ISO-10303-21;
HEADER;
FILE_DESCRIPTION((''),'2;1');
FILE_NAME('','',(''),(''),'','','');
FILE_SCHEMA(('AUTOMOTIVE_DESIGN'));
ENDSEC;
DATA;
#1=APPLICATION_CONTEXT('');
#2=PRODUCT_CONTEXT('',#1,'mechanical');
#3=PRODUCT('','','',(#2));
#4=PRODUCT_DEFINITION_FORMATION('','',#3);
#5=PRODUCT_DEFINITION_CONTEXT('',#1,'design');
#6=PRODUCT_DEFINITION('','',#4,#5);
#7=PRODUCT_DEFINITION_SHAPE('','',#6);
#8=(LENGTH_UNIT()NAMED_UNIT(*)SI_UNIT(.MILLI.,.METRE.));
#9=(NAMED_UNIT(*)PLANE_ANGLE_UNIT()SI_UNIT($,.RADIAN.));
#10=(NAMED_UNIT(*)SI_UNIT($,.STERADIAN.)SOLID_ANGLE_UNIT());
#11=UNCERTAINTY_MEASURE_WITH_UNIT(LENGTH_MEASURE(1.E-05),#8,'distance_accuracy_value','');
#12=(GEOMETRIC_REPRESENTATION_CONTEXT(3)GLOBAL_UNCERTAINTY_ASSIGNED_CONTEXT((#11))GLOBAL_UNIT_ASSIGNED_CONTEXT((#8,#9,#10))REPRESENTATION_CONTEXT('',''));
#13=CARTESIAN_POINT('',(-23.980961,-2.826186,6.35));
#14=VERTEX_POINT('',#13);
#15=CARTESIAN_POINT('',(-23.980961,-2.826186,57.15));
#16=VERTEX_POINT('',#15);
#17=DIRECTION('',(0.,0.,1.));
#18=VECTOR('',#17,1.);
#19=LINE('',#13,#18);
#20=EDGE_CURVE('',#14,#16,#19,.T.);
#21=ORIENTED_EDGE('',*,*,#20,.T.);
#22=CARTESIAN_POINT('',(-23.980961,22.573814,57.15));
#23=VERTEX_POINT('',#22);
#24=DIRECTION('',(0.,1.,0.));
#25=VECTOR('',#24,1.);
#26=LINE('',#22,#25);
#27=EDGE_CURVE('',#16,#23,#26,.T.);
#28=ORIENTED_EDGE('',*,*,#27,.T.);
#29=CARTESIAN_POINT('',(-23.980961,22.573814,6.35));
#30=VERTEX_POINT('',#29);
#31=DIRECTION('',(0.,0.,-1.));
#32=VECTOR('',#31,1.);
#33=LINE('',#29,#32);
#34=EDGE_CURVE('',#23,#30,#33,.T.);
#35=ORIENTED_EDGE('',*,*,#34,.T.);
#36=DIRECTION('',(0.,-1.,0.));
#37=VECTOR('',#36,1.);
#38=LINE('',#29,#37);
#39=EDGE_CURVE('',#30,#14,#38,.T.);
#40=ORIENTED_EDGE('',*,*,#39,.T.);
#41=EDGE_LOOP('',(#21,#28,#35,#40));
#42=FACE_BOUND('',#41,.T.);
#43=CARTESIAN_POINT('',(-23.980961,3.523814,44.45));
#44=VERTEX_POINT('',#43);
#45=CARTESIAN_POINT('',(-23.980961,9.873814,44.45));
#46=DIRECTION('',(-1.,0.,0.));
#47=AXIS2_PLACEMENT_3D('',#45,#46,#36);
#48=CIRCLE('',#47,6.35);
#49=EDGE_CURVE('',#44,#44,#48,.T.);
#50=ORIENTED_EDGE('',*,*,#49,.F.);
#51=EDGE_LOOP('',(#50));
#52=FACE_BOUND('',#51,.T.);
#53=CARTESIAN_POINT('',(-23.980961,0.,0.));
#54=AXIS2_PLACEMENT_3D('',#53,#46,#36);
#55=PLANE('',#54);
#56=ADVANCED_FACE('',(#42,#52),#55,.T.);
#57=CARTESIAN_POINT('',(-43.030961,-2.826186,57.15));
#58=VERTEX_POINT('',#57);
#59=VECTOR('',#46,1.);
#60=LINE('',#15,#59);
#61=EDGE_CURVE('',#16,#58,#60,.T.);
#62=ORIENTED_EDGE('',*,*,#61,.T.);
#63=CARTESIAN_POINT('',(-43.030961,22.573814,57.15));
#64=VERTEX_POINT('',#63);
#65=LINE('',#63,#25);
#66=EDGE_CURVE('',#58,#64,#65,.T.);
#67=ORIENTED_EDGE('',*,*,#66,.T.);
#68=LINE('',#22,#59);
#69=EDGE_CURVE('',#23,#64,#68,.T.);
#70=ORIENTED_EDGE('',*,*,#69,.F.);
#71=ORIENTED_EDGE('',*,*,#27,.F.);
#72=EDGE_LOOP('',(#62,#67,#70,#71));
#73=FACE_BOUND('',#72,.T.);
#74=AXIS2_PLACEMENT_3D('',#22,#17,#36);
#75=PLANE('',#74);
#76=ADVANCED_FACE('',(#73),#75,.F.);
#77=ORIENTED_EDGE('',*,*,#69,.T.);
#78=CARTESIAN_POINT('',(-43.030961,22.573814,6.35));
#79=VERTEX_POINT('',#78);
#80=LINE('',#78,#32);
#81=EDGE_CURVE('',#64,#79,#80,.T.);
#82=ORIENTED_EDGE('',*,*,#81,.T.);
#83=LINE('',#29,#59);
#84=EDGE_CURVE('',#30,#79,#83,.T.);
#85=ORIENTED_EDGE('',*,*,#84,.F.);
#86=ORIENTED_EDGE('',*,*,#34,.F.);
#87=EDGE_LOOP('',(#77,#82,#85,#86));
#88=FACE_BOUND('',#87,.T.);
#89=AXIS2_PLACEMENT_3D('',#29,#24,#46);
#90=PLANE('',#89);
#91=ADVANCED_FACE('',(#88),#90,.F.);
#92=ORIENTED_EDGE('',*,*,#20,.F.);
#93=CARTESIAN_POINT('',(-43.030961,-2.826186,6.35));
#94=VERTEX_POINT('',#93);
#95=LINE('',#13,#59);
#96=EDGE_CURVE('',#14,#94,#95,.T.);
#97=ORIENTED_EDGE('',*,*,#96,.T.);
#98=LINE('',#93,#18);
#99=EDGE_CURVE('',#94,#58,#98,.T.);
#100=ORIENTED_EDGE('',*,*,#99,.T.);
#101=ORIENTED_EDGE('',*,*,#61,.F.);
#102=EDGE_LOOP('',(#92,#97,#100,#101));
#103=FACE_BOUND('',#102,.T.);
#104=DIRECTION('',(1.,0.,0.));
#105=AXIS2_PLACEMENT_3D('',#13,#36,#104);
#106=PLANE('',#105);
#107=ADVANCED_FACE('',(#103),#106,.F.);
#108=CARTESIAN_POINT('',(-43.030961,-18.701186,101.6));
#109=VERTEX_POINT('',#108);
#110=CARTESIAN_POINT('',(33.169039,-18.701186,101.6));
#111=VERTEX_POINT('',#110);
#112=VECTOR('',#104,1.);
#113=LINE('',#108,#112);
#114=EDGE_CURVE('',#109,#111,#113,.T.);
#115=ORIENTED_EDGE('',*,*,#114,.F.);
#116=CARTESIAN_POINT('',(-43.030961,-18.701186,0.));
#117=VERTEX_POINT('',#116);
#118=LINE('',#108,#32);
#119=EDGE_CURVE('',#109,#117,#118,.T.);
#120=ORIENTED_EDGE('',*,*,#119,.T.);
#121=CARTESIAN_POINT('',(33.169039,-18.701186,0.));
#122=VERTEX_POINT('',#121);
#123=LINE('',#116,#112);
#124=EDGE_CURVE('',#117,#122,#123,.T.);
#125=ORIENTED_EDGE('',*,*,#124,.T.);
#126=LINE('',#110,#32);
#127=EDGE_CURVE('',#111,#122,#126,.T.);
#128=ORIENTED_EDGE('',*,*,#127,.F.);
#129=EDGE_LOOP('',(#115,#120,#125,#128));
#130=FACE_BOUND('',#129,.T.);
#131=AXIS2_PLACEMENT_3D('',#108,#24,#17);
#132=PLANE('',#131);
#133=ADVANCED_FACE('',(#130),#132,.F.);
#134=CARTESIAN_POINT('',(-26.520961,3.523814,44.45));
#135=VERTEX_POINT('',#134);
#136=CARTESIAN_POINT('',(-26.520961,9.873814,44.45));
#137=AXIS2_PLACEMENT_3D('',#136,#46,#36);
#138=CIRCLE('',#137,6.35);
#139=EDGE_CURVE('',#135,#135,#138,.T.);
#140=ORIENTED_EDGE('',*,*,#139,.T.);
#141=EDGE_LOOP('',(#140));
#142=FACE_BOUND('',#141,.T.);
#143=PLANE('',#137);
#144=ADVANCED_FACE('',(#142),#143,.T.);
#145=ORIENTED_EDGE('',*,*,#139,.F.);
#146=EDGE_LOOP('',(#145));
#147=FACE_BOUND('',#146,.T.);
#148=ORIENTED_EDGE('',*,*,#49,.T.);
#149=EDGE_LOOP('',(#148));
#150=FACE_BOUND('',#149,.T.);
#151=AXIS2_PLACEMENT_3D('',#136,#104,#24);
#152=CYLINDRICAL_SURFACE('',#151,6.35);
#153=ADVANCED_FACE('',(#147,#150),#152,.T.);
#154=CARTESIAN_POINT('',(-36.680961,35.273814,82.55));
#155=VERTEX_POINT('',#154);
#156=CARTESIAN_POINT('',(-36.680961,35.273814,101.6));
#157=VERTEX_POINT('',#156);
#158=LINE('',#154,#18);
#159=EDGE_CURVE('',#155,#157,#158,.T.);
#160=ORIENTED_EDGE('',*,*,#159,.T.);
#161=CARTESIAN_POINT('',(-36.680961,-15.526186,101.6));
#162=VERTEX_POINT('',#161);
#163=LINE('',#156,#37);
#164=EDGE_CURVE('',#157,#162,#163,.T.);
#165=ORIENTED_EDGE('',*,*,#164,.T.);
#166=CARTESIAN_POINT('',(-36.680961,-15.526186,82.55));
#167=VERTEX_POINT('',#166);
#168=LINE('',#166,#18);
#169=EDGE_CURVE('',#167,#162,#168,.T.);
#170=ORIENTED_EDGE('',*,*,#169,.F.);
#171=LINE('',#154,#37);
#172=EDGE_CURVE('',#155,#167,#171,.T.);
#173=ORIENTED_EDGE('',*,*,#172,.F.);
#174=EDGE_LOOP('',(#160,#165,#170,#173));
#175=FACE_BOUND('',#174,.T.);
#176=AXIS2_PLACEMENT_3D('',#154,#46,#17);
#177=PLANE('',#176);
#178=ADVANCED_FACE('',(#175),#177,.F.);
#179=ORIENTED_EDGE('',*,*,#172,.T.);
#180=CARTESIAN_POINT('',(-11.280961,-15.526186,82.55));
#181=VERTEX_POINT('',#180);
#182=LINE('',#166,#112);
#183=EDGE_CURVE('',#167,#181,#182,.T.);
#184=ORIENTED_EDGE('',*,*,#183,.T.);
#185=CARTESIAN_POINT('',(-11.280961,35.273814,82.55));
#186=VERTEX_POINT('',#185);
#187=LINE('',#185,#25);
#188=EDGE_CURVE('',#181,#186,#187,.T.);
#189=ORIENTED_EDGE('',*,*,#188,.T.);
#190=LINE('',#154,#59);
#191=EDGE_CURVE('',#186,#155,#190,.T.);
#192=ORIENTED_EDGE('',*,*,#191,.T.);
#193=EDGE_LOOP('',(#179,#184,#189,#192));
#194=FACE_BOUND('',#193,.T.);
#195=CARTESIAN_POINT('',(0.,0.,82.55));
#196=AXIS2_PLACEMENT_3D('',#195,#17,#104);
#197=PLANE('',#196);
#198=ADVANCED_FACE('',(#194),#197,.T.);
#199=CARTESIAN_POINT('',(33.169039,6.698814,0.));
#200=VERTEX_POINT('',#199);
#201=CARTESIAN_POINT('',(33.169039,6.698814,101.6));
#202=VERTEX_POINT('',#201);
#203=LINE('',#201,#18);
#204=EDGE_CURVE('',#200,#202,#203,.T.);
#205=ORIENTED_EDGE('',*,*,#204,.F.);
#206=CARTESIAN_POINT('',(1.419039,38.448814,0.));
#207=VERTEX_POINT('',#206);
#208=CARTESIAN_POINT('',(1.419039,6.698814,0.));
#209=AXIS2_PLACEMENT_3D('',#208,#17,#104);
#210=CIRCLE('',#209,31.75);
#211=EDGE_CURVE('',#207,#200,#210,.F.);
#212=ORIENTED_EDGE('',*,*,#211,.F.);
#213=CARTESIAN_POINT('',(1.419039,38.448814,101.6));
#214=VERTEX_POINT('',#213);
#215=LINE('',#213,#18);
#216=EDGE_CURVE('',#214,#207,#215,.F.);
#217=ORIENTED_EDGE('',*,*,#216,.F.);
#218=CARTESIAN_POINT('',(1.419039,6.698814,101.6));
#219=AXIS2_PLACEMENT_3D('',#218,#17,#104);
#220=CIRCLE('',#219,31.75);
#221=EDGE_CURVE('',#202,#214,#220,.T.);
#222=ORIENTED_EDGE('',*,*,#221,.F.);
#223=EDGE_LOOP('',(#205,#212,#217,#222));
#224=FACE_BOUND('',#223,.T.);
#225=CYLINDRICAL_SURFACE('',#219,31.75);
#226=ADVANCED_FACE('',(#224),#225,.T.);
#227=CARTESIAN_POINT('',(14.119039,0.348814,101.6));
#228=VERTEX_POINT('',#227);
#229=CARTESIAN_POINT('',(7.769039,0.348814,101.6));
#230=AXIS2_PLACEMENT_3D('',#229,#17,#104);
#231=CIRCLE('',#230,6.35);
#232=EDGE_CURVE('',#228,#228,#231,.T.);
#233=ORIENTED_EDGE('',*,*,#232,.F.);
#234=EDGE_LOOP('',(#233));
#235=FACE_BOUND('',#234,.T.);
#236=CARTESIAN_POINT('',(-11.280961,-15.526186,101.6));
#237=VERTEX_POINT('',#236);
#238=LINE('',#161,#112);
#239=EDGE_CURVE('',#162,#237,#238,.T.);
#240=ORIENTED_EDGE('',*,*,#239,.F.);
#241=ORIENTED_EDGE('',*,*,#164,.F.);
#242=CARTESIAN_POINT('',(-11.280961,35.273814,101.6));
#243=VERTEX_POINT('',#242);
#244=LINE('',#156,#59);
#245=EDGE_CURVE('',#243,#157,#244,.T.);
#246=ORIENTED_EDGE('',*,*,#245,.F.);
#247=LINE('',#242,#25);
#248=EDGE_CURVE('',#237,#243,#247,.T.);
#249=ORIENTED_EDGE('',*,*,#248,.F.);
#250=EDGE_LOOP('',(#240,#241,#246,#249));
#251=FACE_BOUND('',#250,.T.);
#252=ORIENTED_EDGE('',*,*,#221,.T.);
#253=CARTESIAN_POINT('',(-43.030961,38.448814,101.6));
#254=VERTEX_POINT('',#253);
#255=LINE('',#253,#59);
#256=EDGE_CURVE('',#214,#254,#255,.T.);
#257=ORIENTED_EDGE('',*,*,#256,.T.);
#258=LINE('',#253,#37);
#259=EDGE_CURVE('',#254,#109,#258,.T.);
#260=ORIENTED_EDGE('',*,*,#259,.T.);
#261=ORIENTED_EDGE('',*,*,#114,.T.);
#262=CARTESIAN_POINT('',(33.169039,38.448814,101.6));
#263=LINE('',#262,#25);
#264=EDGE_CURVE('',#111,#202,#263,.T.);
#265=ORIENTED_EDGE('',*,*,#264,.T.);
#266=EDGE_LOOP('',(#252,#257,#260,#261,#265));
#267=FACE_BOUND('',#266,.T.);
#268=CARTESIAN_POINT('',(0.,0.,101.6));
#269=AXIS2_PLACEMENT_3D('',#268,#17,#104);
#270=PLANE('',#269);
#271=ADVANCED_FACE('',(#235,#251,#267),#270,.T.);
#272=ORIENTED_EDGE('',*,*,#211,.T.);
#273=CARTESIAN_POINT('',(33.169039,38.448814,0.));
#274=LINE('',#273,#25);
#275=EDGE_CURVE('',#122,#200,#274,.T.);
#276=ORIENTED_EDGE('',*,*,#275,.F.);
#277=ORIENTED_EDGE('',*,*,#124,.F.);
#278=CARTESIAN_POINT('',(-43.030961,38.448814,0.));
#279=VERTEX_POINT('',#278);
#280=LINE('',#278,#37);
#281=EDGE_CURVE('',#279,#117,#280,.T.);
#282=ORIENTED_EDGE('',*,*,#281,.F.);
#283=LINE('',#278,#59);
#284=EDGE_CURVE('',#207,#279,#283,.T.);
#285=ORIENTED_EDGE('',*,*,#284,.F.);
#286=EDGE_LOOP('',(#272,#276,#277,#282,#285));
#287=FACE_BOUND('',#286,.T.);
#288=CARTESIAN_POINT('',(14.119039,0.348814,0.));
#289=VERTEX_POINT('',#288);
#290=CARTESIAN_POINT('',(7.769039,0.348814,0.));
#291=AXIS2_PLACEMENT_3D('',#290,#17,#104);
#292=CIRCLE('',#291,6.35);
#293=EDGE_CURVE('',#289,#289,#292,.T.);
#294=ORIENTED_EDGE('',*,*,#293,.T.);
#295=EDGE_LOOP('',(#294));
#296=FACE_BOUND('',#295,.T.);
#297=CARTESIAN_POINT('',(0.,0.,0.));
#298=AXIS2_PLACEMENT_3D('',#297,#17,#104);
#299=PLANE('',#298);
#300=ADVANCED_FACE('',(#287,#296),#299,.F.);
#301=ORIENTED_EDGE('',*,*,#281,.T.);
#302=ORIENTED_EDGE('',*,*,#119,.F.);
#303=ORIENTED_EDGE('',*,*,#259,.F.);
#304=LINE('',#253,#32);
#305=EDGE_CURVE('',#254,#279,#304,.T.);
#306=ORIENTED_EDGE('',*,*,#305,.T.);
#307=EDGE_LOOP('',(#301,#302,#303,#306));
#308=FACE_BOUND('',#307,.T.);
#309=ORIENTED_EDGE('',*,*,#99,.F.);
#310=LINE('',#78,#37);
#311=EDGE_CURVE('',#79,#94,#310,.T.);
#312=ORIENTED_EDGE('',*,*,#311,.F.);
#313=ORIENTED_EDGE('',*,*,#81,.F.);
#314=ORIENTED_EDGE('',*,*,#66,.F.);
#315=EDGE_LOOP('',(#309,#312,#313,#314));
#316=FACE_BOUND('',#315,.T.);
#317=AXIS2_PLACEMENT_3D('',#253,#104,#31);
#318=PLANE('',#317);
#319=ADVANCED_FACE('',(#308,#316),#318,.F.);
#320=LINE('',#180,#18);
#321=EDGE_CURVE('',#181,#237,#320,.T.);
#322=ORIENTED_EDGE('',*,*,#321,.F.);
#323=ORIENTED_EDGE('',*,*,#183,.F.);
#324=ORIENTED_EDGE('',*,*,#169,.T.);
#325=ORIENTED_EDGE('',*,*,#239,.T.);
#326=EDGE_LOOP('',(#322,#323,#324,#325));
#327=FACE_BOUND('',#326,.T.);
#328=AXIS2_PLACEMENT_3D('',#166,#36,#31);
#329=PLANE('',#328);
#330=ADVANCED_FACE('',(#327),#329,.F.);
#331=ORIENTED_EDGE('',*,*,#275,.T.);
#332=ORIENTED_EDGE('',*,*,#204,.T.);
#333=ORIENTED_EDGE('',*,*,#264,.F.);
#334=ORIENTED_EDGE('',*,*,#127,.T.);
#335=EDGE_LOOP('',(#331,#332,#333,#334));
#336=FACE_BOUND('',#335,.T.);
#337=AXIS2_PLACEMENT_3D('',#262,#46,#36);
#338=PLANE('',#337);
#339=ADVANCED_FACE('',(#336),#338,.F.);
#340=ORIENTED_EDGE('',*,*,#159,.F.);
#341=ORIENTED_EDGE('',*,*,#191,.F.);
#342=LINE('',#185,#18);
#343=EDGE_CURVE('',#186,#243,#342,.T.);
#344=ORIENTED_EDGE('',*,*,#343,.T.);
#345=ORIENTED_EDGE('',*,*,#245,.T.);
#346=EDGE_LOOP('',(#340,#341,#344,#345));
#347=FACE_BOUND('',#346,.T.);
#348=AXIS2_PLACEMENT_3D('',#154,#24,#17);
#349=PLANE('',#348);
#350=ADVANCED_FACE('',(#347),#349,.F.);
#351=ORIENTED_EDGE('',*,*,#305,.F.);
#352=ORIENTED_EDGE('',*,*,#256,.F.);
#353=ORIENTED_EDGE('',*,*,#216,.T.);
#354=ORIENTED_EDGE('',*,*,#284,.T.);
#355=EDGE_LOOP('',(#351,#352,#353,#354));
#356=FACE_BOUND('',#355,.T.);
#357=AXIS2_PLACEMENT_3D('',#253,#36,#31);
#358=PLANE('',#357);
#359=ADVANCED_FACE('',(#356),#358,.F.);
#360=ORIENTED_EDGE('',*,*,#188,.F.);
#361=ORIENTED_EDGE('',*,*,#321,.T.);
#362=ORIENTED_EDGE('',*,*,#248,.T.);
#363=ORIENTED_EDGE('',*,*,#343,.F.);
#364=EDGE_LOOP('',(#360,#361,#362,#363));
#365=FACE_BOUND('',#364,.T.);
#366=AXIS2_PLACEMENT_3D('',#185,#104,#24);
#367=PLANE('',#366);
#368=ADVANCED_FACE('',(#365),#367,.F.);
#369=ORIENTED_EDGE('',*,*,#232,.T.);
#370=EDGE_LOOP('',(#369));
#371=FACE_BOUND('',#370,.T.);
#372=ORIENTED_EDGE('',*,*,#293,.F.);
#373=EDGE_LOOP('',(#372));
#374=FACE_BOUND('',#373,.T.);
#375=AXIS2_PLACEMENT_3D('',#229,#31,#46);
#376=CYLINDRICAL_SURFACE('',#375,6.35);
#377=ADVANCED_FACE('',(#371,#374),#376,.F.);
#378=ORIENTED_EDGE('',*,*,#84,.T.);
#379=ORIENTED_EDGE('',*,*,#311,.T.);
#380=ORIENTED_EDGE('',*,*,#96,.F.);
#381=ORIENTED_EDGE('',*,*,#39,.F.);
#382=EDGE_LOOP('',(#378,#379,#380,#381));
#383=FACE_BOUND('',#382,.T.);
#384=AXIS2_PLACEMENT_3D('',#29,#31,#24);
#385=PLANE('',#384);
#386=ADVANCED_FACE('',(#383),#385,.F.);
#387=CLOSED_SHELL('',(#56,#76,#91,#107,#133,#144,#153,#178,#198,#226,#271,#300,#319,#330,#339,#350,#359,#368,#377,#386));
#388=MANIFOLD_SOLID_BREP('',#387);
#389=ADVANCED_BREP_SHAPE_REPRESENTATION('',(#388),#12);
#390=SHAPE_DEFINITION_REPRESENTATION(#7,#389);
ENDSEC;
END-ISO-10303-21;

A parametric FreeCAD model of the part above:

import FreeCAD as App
import Part
import Sketcher
from FreeCAD import Vector
Q = App.Units.Quantity


def edges_at(feature, points):
    """Names of the edges that pass closest to the given points."""
    edges = feature.Shape.Edges
    near = lambda p: min(range(len(edges)), key=lambda i: edges[i].distToShape(Part.Vertex(*p))[0])
    return sorted({f"Edge{near(p) + 1}" for p in points})


def add_polygon(sketch, points):
    """Adds a closed chain of lines whose ends are joined by coincident constraints."""
    first, n = sketch.GeometryCount, len(points)
    for a, b in zip(points, points[1:] + points[:1]):
        sketch.addGeometry(Part.LineSegment(App.Vector(*a, 0), App.Vector(*b, 0)), False)
    for i in range(n):
        sketch.addConstraint(Sketcher.Constraint("Coincident", first + i, 2, first + (i + 1) % n, 1))

doc = App.newDocument("Part")
params = doc.addObject("Spreadsheet::Sheet", "Params")
for row, (alias, value) in enumerate([
    ("sketch1_diameter", "0.5 in"),
    ("sketch1_width", "3 in"),
    ("sketch1_height", "2.25 in"),
    ("pad1_length", "4 in"),
    ("sketch2_width", "1 in"),
    ("sketch2_height", "2 in"),
    ("pocket1_length", "0.75 in"),
    ("sketch3_width", "1 in"),
    ("sketch3_height", "2 in"),
    ("pocket2_length", "0.75 in"),
    ("sketch4_diameter", "0.5 in"),
    ("pad2_length", "0.1 in"),
    ("fillet_radius", "1.25 in"),
], start=1):
    params.set(f"A{row}", alias)
    params.set(f"B{row}", "=" + value)
    params.setAlias(f"B{row}", alias)

body = doc.addObject("PartDesign::Body", "Body")

# Sketch on XY plane
sketch1 = body.newObject("Sketcher::SketchObject", "Sketch")
sketch1.AttachmentSupport = (doc.getObject("XY_Plane"), [""])
sketch1.MapMode = "FlatFace"
add_polygon(sketch1, [(-43.030961, 38.448814), (-43.030961, -18.701186), (33.169039, -18.701186), (33.169039, 38.448814)])  # lines 0-3
sketch1.addGeometry(Part.Circle(Vector(7.769039, 0.348814, 0), Vector(0, 0, 1), 6.35), False)  # 4
sketch1.addConstraint([
    Sketcher.Constraint("Vertical", 0),
    Sketcher.Constraint("Horizontal", 1),
    Sketcher.Constraint("Vertical", 2),
    Sketcher.Constraint("Horizontal", 3),
    Sketcher.Constraint("Diameter", 4, Q("0.5 in")),
    Sketcher.Constraint("DistanceX", 1, 1, 1, 2, Q("3 in")),
    Sketcher.Constraint("DistanceX", 0, 2, 4, 3, Q("2 in")),
    Sketcher.Constraint("DistanceY", 0, 2, 0, 1, Q("2.25 in")),
    Sketcher.Constraint("DistanceY", 4, 3, 2, 2, Q("1.5 in")),
    Sketcher.Constraint("DistanceX", -1, 1, 4, 3, 7.769039),
    Sketcher.Constraint("DistanceY", -1, 1, 4, 3, 0.348814),
])
sketch1.setExpression("Constraints[8]", "Params.sketch1_diameter")
sketch1.setExpression("Constraints[9]", "Params.sketch1_width")
sketch1.setExpression("Constraints[11]", "Params.sketch1_height")
pad1 = body.newObject("PartDesign::Pad", "Pad")
pad1.Profile = sketch1
pad1.setExpression("Length", "Params.pad1_length")

# Sketch on YZ plane
sketch2 = body.newObject("Sketcher::SketchObject", "Sketch001")
sketch2.AttachmentSupport = (doc.getObject("YZ_Plane"), [""])
sketch2.MapMode = "FlatFace"
sketch2.AttachmentOffset = App.Placement(Vector(0, 0, -43.030961), App.Rotation())
add_polygon(sketch2, [(22.573814, 6.35), (-2.826186, 6.35), (-2.826186, 57.15), (22.573814, 57.15)])  # lines 0-3
sketch2.addConstraint([
    Sketcher.Constraint("Horizontal", 0),
    Sketcher.Constraint("Vertical", 1),
    Sketcher.Constraint("Horizontal", 2),
    Sketcher.Constraint("Vertical", 3),
    Sketcher.Constraint("DistanceX", 0, 2, 0, 1, Q("1 in")),
    Sketcher.Constraint("DistanceY", 1, 1, 1, 2, Q("2 in")),
    Sketcher.Constraint("DistanceY", -1, 1, 0, 2, Q("0.25 in")),
    Sketcher.Constraint("DistanceX", 0, 2, -1, 1, 2.826186),
])
sketch2.setExpression("Constraints[8]", "Params.sketch2_width")
sketch2.setExpression("Constraints[9]", "Params.sketch2_height")
pocket1 = body.newObject("PartDesign::Pocket", "Pocket")
pocket1.Profile = sketch2
pocket1.setExpression("Length", "Params.pocket1_length")
pocket1.Reversed = True

# Sketch on XY plane
sketch3 = body.newObject("Sketcher::SketchObject", "Sketch002")
sketch3.AttachmentSupport = (doc.getObject("XY_Plane"), [""])
sketch3.MapMode = "FlatFace"
sketch3.AttachmentOffset = App.Placement(Vector(0, 0, 4 * 25.4), App.Rotation())
add_polygon(sketch3, [(-36.680961, 35.273814), (-36.680961, -15.526186), (-11.280961, -15.526186), (-11.280961, 35.273814)])  # lines 0-3
sketch3.addConstraint([
    Sketcher.Constraint("Vertical", 0),
    Sketcher.Constraint("Horizontal", 1),
    Sketcher.Constraint("Vertical", 2),
    Sketcher.Constraint("Horizontal", 3),
    Sketcher.Constraint("DistanceX", 1, 1, 1, 2, Q("1 in")),
    Sketcher.Constraint("DistanceY", 0, 2, 0, 1, Q("2 in")),
    Sketcher.Constraint("DistanceX", 0, 2, -1, 1, 36.680961),
    Sketcher.Constraint("DistanceY", 0, 2, -1, 1, 15.526186),
])
sketch3.setExpression("Constraints[8]", "Params.sketch3_width")
sketch3.setExpression("Constraints[9]", "Params.sketch3_height")
pocket2 = body.newObject("PartDesign::Pocket", "Pocket001")
pocket2.Profile = sketch3
pocket2.setExpression("Length", "Params.pocket2_length")

# Sketch on YZ plane
sketch4 = body.newObject("Sketcher::SketchObject", "Sketch003")
sketch4.AttachmentSupport = (doc.getObject("YZ_Plane"), [""])
sketch4.MapMode = "FlatFace"
sketch4.AttachmentOffset = App.Placement(Vector(0, 0, -23.980961), App.Rotation())
sketch4.addGeometry(Part.Circle(Vector(9.873814, 44.45, 0), Vector(0, 0, 1), 6.35), False)
sketch4.addConstraint([
    Sketcher.Constraint("Diameter", 0, Q("0.5 in")),
    Sketcher.Constraint("DistanceY", -1, 1, 0, 3, Q("1.75 in")),
    Sketcher.Constraint("DistanceX", -1, 1, 0, 3, 9.873814),
])
sketch4.setExpression("Constraints[0]", "Params.sketch4_diameter")
pad2 = body.newObject("PartDesign::Pad", "Pad001")
pad2.Profile = sketch4
pad2.setExpression("Length", "Params.pad2_length")
pad2.Reversed = True
doc.recompute()

fillet = body.newObject("PartDesign::Fillet", "Fillet")
fillet.Base = (pad2, edges_at(pad2, [(33.169, 38.449, 50.8)]))
fillet.setExpression("Radius", "Params.fillet_radius")

doc.recompute()
